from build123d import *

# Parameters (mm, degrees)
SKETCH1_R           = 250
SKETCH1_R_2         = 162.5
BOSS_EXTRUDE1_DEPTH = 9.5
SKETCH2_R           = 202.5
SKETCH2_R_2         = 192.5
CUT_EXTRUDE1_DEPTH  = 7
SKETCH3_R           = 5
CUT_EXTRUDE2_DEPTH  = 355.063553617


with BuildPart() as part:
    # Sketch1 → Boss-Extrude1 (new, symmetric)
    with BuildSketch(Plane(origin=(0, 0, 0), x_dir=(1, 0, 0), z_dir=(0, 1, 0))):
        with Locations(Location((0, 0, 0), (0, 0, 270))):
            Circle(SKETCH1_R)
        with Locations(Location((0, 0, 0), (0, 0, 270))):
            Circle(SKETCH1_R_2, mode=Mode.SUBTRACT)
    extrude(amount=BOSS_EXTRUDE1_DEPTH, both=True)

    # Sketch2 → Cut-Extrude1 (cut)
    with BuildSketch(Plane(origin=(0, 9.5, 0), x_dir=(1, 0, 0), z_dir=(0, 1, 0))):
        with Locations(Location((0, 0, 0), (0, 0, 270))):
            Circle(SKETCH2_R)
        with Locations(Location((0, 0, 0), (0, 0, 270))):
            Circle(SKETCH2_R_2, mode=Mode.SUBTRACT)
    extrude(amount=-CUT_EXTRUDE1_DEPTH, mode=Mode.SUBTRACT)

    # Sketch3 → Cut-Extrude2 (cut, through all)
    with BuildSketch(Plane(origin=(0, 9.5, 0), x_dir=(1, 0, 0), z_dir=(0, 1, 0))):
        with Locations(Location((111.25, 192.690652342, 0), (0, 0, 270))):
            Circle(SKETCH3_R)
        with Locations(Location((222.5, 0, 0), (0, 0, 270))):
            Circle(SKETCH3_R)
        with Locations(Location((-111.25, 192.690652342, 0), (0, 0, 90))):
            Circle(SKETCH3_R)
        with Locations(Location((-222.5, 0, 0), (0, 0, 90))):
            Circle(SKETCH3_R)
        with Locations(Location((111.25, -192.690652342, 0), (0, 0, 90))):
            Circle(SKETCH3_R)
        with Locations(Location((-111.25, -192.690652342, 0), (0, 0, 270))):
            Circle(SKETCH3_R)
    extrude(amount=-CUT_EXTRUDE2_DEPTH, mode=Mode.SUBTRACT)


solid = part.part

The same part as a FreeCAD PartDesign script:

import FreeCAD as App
import Part
import Sketcher

V = App.Vector
Q = App.Units.Quantity

doc = App.newDocument("Part")
body = doc.addObject("PartDesign::Body", "Body")

# Sketch on XZ plane
sketch1 = doc.addObject("Sketcher::SketchObject", "Sketch")
body.addObject(sketch1)
sketch1.AttachmentSupport = (doc.XZ_Plane, [""])
sketch1.MapMode = "FlatFace"
sketch1.addGeometry([
    Part.Circle(V(0, 0, 0), V(0, 0, 1), 250),
    Part.Circle(V(0, 0, 0), V(0, 0, 1), 162),
], False)
sketch1.addConstraint([
    Sketcher.Constraint("Coincident", 0, 3, -1, 1),
    Sketcher.Constraint("Coincident", 1, 3, -1, 1),
    Sketcher.Constraint("Diameter", 0, Q("500 mm")),
    Sketcher.Constraint("Diameter", 1, Q("325 mm")),
])
pad1 = doc.addObject("PartDesign::Pad", "Pad")
body.addObject(pad1)
pad1.Profile = sketch1
pad1.Length = 19
pad1.Midplane = True

# Sketch on XZ plane
sketch2 = doc.addObject("Sketcher::SketchObject", "Sketch001")
body.addObject(sketch2)
sketch2.AttachmentSupport = (doc.XZ_Plane, [""])
sketch2.MapMode = "FlatFace"
sketch2.AttachmentOffset = App.Placement(V(0, 0, -9.5), App.Rotation())
sketch2.addGeometry([
    Part.Circle(V(0, 0, 0), V(0, 0, 1), 202),
    Part.Circle(V(0, 0, 0), V(0, 0, 1), 192),
], False)
sketch2.addConstraint([
    Sketcher.Constraint("Coincident", 0, 3, -1, 1),
    Sketcher.Constraint("Coincident", 1, 3, -1, 1),
    Sketcher.Constraint("Diameter", 0, Q("405 mm")),
    Sketcher.Constraint("Diameter", 1, Q("385 mm")),
])
pocket1 = doc.addObject("PartDesign::Pocket", "Pocket")
body.addObject(pocket1)
pocket1.Profile = sketch2
pocket1.Length = 7
pocket1.Reversed = True

# Sketch on XZ plane
sketch3 = doc.addObject("Sketcher::SketchObject", "Sketch002")
body.addObject(sketch3)
sketch3.AttachmentSupport = (doc.XZ_Plane, [""])
sketch3.MapMode = "FlatFace"
sketch3.AttachmentOffset = App.Placement(V(0, 0, -9.5), App.Rotation())
sketch3.addGeometry([
    Part.Circle(V(111, -193, 0), V(0, 0, 1), 5),  # 0
    Part.Circle(V(222, 0, 0), V(0, 0, 1), 5),  # 1
    Part.Circle(V(-111, -193, 0), V(0, 0, 1), 5),  # 2
    Part.Circle(V(-222, 0, 0), V(0, 0, 1), 5),  # 3
    Part.Circle(V(111, 193, 0), V(0, 0, 1), 5),  # 4
    Part.Circle(V(-111, 193, 0), V(0, 0, 1), 5),  # 5
], False)
sketch3.addConstraint([
    Sketcher.Constraint("Equal", 0, 1),
    Sketcher.Constraint("Equal", 1, 2),
    Sketcher.Constraint("Equal", 2, 3),
    Sketcher.Constraint("Equal", 3, 4),
    Sketcher.Constraint("Equal", 4, 5),
    Sketcher.Constraint("Symmetric", 1, 3, 3, 3, -1, 1),
    Sketcher.Constraint("Symmetric", 2, 3, 4, 3, -1, 1),
    Sketcher.Constraint("Symmetric", 0, 3, 5, 3, -1, 1),
    Sketcher.Constraint("Symmetric", 0, 3, 2, 3, -2),
    Sketcher.Constraint("PointOnObject", 1, 3, -1),
    Sketcher.Constraint("Diameter", 0, Q("10 mm")),
    Sketcher.Constraint("DistanceX", 3, 3, 1, 3, Q("445 mm")),
    Sketcher.Constraint("DistanceX", 2, 3, 0, 3, Q("222.5 mm")),
    Sketcher.Constraint("DistanceY", 0, 3, -1, 1, Q("192.690652 mm")),
])
pocket2 = doc.addObject("PartDesign::Pocket", "Pocket001")
body.addObject(pocket2)
pocket2.Profile = sketch3
pocket2.Type = "ThroughAll"
pocket2.Reversed = True

doc.recompute()
